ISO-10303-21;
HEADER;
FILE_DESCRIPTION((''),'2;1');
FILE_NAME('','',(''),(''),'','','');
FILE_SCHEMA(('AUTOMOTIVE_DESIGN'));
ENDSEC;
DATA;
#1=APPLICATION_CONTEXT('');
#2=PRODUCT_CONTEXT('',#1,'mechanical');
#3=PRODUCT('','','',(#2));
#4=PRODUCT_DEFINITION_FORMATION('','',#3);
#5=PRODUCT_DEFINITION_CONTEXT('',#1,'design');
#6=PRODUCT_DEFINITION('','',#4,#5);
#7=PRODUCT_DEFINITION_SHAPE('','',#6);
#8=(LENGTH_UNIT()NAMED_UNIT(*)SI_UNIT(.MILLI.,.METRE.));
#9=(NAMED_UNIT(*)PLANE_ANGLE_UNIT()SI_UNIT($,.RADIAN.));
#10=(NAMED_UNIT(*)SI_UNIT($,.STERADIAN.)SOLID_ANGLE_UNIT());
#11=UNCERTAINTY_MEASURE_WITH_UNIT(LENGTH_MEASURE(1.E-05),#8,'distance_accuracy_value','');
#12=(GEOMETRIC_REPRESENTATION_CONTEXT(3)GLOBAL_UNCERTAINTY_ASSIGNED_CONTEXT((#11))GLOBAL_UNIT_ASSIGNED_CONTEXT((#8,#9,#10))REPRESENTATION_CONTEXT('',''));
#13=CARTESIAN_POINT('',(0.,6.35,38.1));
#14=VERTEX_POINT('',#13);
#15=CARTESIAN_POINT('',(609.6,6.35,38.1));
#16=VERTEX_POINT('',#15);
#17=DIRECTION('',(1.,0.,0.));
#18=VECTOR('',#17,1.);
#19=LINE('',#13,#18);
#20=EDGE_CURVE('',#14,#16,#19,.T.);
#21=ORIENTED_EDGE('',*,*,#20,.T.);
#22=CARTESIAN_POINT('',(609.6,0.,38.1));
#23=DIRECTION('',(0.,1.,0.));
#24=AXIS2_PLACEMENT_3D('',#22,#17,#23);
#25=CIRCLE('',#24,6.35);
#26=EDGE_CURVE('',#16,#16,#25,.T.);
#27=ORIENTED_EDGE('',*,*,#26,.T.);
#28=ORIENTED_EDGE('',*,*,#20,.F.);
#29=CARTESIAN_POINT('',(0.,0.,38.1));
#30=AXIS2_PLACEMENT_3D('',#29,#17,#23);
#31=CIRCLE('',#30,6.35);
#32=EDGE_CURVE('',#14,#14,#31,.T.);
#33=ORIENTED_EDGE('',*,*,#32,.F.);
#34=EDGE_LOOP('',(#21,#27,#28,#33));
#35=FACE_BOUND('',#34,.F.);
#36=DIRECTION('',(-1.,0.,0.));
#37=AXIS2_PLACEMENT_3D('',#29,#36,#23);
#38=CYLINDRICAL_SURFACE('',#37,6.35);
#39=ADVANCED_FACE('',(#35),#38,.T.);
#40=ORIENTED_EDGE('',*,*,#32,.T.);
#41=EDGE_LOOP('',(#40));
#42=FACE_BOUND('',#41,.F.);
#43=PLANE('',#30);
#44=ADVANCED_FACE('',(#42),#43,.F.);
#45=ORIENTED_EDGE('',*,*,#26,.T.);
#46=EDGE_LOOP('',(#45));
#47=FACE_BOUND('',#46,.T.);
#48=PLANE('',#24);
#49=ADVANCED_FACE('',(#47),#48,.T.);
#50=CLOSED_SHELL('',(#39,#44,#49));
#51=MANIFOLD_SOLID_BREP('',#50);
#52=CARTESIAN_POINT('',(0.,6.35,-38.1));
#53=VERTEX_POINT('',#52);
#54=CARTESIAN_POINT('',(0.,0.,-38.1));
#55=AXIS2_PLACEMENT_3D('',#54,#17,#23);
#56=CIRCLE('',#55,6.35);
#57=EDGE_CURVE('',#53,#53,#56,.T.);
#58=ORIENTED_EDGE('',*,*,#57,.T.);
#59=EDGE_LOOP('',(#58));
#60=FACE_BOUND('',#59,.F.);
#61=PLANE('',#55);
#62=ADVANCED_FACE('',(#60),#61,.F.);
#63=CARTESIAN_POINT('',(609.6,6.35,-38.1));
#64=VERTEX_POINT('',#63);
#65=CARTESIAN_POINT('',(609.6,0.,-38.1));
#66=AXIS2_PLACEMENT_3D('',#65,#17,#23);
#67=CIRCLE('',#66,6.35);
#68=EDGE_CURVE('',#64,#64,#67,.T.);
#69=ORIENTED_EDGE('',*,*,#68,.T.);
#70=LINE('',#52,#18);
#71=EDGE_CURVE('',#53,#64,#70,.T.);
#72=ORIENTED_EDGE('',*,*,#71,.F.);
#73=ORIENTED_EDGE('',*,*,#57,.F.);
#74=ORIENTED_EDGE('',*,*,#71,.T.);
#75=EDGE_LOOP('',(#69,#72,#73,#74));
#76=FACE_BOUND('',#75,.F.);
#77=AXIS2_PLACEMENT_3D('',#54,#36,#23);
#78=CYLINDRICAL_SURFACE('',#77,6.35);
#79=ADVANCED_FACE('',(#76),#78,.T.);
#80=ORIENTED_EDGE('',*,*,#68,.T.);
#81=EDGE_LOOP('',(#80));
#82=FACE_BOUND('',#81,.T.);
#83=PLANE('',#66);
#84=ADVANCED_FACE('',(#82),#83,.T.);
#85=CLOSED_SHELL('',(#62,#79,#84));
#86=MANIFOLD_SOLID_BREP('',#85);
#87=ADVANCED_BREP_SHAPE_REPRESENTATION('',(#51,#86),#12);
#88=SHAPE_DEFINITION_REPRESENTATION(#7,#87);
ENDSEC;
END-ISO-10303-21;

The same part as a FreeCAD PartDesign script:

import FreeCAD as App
import Part
import Sketcher
Q = App.Units.Quantity

doc = App.newDocument("Part")
body = doc.addObject("PartDesign::Body", "Body")
body.AllowCompound = True

# Sketch on YZ plane
sketch1 = body.newObject("Sketcher::SketchObject", "Sketch")
sketch1.AttachmentSupport = (doc.getObject("YZ_Plane"), [""])
sketch1.MapMode = "FlatFace"
sketch1.addGeometry(Part.Circle(App.Vector(0, 38, 0), App.Vector(0, 0, 1), 6), False)
sketch1.addGeometry(Part.Circle(App.Vector(0, -38, 0), App.Vector(0, 0, 1), 6), False)
sketch1.addConstraint(Sketcher.Constraint("Equal", 0, 1))
sketch1.addConstraint(Sketcher.Constraint("Symmetric", 0, 3, 1, 3, -1, 1))
sketch1.addConstraint(Sketcher.Constraint("PointOnObject", 0, 3, -2))
sketch1.addConstraint(Sketcher.Constraint("Diameter", 0, Q("0.5 in")))
sketch1.addConstraint(Sketcher.Constraint("DistanceY", 1, 3, 0, 3, Q("3 in")))
pad1 = body.newObject("PartDesign::Pad", "Pad")
pad1.Profile = sketch1
pad1.Length = Q("24 in")

doc.recompute()
